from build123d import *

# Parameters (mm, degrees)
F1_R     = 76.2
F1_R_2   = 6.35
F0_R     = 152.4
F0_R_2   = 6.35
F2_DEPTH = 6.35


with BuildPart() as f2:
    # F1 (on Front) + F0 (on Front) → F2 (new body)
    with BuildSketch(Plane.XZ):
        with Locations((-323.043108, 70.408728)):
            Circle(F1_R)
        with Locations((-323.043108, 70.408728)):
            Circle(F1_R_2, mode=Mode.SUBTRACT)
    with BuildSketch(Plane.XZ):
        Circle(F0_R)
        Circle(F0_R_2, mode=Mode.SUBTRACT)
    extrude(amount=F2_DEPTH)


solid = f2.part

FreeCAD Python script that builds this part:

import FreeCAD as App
import Part
import Sketcher

V = App.Vector
Q = App.Units.Quantity

doc = App.newDocument("Part")
body = doc.addObject("PartDesign::Body", "Body")
body.AllowCompound = True

sketch1 = doc.addObject("Sketcher::SketchObject", "Sketch")
body.addObject(sketch1)
sketch1.AttachmentSupport = (doc.XZ_Plane, [""])
sketch1.MapMode = "FlatFace"
sketch1.addGeometry([
    Part.Circle(V(-323, 70, 0), V(0, 0, 1), 76),
    Part.Circle(V(-323, 70, 0), V(0, 0, 1), 6),
    Part.Circle(V(0, 0, 0), V(0, 0, 1), 152),
    Part.Circle(V(0, 0, 0), V(0, 0, 1), 6),
], False)
sketch1.addConstraint([
    Sketcher.Constraint("Coincident", 2, 3, -1, 1),
    Sketcher.Constraint("Coincident", 3, 3, -1, 1),
    Sketcher.Constraint("Coincident", 1, 3, 0, 3),
    Sketcher.Constraint("Equal", 1, 3),
    Sketcher.Constraint("Diameter", 0, Q("6 in")),
    Sketcher.Constraint("Diameter", 2, Q("12 in")),
    Sketcher.Constraint("Diameter", 1, Q("0.5 in")),
    Sketcher.Constraint("DistanceX", 0, 3, -1, 1, Q("323.043108 mm")),
    Sketcher.Constraint("DistanceY", -1, 1, 0, 3, Q("70.408728 mm")),
])
pad1 = doc.addObject("PartDesign::Pad", "Pad")
body.addObject(pad1)
pad1.Profile = sketch1
pad1.Length = Q("0.25 in")

doc.recompute()
